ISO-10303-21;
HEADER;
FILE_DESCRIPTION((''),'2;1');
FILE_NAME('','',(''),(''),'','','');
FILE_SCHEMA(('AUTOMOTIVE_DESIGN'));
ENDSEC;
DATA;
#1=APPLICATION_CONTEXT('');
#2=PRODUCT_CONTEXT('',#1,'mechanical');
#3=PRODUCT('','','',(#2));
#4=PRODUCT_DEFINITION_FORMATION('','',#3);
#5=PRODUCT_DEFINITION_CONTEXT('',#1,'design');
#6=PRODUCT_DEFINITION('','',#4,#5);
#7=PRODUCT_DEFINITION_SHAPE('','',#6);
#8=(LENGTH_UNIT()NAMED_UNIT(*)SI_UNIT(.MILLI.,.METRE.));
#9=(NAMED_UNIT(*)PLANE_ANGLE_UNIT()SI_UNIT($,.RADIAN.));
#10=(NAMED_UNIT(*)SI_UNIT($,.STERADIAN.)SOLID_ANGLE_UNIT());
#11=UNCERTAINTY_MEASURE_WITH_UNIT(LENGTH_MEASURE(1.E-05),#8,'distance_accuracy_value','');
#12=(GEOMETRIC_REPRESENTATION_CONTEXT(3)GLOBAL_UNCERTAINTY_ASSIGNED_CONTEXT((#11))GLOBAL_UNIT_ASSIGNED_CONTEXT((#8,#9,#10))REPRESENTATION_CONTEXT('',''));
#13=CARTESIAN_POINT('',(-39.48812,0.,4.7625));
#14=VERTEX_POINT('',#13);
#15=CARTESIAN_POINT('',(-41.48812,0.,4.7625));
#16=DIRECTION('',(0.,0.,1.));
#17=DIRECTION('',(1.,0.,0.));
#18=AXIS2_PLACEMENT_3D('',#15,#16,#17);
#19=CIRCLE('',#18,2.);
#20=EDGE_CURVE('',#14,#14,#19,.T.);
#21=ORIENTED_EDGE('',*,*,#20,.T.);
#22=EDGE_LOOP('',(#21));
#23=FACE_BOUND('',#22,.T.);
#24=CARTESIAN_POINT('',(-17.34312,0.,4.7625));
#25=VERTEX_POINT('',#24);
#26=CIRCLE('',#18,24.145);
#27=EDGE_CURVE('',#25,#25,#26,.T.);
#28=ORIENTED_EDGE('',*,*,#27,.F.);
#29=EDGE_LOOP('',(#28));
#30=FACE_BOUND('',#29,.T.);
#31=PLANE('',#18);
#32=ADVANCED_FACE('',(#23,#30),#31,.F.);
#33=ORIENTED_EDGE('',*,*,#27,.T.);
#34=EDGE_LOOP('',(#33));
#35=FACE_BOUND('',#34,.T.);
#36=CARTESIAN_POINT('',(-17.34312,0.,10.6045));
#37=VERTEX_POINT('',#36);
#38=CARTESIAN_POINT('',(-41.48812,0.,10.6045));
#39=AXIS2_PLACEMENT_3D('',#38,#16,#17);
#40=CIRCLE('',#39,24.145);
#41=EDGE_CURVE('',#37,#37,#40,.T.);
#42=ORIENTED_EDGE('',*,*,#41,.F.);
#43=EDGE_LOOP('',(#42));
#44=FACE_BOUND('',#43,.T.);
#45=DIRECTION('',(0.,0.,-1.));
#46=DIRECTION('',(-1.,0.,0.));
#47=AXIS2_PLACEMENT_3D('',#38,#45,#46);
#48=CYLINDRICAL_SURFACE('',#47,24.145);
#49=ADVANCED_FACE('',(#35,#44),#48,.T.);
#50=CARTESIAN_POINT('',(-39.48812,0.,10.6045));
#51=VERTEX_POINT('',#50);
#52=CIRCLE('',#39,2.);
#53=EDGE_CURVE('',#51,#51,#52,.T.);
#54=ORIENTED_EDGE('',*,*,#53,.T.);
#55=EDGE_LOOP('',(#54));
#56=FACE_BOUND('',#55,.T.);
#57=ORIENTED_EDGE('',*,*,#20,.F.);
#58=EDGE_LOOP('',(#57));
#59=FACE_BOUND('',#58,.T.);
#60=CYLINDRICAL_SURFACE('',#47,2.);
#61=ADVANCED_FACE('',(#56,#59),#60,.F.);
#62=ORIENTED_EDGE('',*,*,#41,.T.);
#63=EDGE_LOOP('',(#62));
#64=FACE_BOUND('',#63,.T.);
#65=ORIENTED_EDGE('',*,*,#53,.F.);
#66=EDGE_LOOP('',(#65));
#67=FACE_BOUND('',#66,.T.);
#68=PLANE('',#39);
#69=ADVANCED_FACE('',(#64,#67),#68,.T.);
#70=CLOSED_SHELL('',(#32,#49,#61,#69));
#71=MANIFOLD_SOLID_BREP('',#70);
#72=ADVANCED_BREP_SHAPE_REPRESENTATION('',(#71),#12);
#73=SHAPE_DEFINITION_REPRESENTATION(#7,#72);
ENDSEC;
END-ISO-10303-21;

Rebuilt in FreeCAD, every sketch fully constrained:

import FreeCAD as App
import Part
import Sketcher

doc = App.newDocument("Part")
params = doc.addObject("Spreadsheet::Sheet", "Params")
for row, (alias, value) in enumerate([
    ("sketch1_diameter", "4 mm"),
    ("sketch1_diameter2", "48.29 mm"),
    ("pad1_length", "5.842 mm"),
], start=1):
    params.set(f"A{row}", alias)
    params.set(f"B{row}", "=" + value)
    params.setAlias(f"B{row}", alias)

body = doc.addObject("PartDesign::Body", "Body")

# Sketch on XY plane
sketch1 = doc.addObject("Sketcher::SketchObject", "Sketch")
body.addObject(sketch1)
sketch1.AttachmentSupport = (doc.XY_Plane, [""])
sketch1.MapMode = "FlatFace"
sketch1.AttachmentOffset = App.Placement(App.Vector(0, 0, 4.7625), App.Rotation())
sketch1.addGeometry(Part.Circle(App.Vector(-41.5, 0, 0), App.Vector(0, 0, 1), 24.1), False)
sketch1.addGeometry(Part.Circle(App.Vector(-41.5, 0, 0), App.Vector(0, 0, 1), 2), False)
sketch1.addConstraint(Sketcher.Constraint("Coincident", 1, 3, 0, 3))
sketch1.addConstraint(Sketcher.Constraint("PointOnObject", 0, 3, -1))
sketch1.addConstraint(Sketcher.Constraint("Diameter", 1, 4.0))
sketch1.addConstraint(Sketcher.Constraint("Diameter", 0, 48.29))
sketch1.addConstraint(Sketcher.Constraint("DistanceX", 0, 3, -1, 1, 41.48812))
sketch1.setExpression("Constraints[2]", "Params.sketch1_diameter")
sketch1.setExpression("Constraints[3]", "Params.sketch1_diameter2")
pad1 = doc.addObject("PartDesign::Pad", "Pad")
body.addObject(pad1)
pad1.Profile = sketch1
pad1.setExpression("Length", "Params.pad1_length")

doc.recompute()
